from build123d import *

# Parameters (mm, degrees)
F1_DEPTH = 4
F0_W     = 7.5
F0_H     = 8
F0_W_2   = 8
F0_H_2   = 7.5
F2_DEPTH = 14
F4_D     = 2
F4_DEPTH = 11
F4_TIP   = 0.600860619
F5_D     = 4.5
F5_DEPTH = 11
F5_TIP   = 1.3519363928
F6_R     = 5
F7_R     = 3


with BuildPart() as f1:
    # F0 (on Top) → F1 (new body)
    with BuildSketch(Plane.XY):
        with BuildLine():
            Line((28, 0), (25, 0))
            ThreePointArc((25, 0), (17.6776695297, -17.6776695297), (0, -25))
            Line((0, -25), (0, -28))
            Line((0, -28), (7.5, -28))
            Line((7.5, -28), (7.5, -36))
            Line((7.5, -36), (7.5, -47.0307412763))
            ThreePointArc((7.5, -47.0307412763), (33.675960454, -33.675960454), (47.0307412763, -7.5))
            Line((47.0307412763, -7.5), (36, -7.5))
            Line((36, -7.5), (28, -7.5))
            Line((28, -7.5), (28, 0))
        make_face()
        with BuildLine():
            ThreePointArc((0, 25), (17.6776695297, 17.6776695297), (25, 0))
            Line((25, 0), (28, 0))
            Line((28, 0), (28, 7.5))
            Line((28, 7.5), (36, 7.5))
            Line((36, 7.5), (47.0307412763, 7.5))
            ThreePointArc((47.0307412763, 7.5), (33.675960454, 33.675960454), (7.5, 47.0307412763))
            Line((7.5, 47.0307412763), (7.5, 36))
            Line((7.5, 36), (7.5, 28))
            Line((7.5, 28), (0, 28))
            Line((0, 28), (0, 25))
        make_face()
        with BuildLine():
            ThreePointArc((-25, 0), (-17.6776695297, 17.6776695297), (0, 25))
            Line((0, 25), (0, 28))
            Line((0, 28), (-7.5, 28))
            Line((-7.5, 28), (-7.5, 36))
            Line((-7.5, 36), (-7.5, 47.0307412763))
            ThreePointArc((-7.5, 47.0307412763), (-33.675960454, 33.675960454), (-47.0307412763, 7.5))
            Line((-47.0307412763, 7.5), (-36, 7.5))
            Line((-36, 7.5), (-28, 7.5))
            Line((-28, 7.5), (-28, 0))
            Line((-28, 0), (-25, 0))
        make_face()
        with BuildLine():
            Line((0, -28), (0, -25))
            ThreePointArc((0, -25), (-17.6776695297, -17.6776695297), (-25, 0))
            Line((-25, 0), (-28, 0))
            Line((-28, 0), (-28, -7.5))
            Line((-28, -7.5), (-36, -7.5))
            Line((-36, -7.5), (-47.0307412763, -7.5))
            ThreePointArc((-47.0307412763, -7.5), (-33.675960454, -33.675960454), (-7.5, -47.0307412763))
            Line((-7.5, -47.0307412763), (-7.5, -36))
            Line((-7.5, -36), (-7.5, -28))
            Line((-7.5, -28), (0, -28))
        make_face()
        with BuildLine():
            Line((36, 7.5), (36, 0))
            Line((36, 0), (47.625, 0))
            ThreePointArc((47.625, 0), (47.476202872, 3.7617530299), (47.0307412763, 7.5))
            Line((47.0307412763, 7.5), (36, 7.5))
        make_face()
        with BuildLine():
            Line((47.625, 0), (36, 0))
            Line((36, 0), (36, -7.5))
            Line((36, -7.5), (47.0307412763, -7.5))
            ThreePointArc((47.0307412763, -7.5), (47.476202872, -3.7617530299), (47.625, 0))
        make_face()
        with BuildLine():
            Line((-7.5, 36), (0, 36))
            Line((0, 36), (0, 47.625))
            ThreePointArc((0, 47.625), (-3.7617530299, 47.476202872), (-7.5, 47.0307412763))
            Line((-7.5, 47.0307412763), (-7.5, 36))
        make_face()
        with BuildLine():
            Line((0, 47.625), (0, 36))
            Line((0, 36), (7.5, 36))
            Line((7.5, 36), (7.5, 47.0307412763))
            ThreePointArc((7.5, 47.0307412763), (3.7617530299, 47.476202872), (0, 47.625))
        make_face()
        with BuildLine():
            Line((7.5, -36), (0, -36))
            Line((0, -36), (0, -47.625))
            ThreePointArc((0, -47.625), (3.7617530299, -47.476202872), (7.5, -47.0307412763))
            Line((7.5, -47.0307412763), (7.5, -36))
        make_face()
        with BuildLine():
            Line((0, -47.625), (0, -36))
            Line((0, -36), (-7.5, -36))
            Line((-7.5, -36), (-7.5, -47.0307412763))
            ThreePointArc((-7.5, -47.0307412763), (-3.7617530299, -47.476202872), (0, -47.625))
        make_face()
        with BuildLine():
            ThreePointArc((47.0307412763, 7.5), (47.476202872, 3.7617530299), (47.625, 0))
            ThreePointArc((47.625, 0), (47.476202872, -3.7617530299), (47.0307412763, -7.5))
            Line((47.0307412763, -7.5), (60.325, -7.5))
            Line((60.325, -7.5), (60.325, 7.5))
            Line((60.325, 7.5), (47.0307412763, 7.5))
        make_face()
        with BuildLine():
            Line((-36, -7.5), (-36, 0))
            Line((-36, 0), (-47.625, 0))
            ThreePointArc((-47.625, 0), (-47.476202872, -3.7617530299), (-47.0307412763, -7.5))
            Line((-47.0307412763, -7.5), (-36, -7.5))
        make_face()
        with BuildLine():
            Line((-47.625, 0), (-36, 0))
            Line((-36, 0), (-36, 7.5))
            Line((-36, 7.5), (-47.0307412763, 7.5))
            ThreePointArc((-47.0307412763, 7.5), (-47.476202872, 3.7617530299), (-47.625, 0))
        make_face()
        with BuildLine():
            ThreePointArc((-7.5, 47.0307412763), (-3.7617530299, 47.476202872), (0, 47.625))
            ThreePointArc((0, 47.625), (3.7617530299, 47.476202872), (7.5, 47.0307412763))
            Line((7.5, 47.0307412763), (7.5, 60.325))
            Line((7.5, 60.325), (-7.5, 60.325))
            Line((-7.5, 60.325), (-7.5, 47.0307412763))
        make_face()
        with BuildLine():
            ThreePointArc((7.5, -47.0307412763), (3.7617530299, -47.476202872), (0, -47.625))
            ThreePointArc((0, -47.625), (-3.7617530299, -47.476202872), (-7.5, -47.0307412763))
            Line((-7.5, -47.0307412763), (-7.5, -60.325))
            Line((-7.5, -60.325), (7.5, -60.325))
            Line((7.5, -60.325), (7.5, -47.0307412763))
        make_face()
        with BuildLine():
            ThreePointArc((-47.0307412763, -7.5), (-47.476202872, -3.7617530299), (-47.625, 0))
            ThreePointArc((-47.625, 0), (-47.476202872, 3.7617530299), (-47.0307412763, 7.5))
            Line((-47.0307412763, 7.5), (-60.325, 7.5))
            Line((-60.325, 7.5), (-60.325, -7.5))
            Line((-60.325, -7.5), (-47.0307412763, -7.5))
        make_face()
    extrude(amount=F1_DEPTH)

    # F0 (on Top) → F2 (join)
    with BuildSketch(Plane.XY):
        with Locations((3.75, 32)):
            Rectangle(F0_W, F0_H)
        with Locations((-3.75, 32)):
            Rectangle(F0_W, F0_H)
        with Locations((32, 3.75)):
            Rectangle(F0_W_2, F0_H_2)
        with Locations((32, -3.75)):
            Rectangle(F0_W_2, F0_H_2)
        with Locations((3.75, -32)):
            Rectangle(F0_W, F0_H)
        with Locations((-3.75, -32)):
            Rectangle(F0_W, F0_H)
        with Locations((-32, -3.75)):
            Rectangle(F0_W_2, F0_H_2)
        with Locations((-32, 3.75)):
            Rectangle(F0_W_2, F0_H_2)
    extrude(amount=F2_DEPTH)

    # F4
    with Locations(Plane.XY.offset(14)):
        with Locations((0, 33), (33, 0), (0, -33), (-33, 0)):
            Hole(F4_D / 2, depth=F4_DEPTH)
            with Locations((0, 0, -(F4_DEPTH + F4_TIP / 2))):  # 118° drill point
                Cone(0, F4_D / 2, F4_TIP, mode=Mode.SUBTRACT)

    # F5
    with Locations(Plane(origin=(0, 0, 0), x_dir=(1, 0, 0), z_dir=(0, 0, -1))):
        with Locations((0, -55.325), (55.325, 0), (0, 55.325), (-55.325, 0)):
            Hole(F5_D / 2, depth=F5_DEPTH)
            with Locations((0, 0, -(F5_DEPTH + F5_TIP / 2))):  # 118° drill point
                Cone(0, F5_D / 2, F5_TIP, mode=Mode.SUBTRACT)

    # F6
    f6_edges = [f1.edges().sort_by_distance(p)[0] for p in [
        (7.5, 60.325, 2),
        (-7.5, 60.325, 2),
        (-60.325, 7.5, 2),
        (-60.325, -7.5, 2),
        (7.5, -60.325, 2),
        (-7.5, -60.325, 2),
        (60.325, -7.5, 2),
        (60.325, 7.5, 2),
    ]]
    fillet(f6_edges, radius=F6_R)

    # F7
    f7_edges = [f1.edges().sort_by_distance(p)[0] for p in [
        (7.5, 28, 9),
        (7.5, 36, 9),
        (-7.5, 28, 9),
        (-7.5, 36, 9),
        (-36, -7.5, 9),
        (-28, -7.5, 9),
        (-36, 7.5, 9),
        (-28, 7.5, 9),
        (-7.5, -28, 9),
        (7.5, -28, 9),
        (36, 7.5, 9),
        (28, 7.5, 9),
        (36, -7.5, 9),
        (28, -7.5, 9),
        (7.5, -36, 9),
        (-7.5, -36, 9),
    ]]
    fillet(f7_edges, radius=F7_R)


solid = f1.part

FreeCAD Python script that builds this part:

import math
import FreeCAD as App
import Part
import Sketcher
Q = App.Units.Quantity


def edges_at(feature, points):
    """Names of the edges that pass closest to the given points."""
    edges = feature.Shape.Edges
    near = lambda p: min(range(len(edges)), key=lambda i: edges[i].distToShape(Part.Vertex(*p))[0])
    return sorted({f"Edge{near(p) + 1}" for p in points})


def add_polygon(sketch, points):
    """Adds a closed chain of lines whose ends are joined by coincident constraints."""
    first, n = sketch.GeometryCount, len(points)
    for a, b in zip(points, points[1:] + points[:1]):
        sketch.addGeometry(Part.LineSegment(App.Vector(*a, 0), App.Vector(*b, 0)), False)
    for i in range(n):
        sketch.addConstraint(Sketcher.Constraint("Coincident", first + i, 2, first + (i + 1) % n, 1))

doc = App.newDocument("Part")
body = doc.addObject("PartDesign::Body", "Body")

# Sketch on XY plane
sketch1 = body.newObject("Sketcher::SketchObject", "Sketch")
sketch1.AttachmentSupport = (doc.getObject("XY_Plane"), [""])
sketch1.MapMode = "FlatFace"
sketch1.addGeometry(Part.ArcOfCircle(Part.Circle(App.Vector(0, 0, 0), App.Vector(0, 0, 1), 48), math.radians(-81), math.radians(-9)), False)  # 0
sketch1.addGeometry(Part.LineSegment(App.Vector(47, -8, 0), App.Vector(60, -8, 0)), False)  # 1
sketch1.addGeometry(Part.LineSegment(App.Vector(60, -8, 0), App.Vector(60, 8, 0)), False)  # 2
sketch1.addGeometry(Part.LineSegment(App.Vector(60, 8, 0), App.Vector(47, 8, 0)), False)  # 3
sketch1.addGeometry(Part.ArcOfCircle(Part.Circle(App.Vector(0, 0, 0), App.Vector(0, 0, 1), 48), math.radians(9), math.radians(81)), False)  # 4
sketch1.addGeometry(Part.LineSegment(App.Vector(8, 47, 0), App.Vector(8, 60, 0)), False)  # 5
sketch1.addGeometry(Part.LineSegment(App.Vector(8, 60, 0), App.Vector(-8, 60, 0)), False)  # 6
sketch1.addGeometry(Part.LineSegment(App.Vector(-8, 60, 0), App.Vector(-8, 47, 0)), False)  # 7
sketch1.addGeometry(Part.ArcOfCircle(Part.Circle(App.Vector(0, 0, 0), App.Vector(0, 0, 1), 48), math.radians(99), math.radians(171)), False)  # 8
sketch1.addGeometry(Part.LineSegment(App.Vector(-47, 8, 0), App.Vector(-60, 8, 0)), False)  # 9
sketch1.addGeometry(Part.LineSegment(App.Vector(-60, 8, 0), App.Vector(-60, -8, 0)), False)  # 10
sketch1.addGeometry(Part.LineSegment(App.Vector(-60, -8, 0), App.Vector(-47, -8, 0)), False)  # 11
sketch1.addGeometry(Part.ArcOfCircle(Part.Circle(App.Vector(0, 0, 0), App.Vector(0, 0, 1), 48), math.radians(-171), math.radians(-99)), False)  # 12
sketch1.addGeometry(Part.LineSegment(App.Vector(-8, -47, 0), App.Vector(-8, -60, 0)), False)  # 13
sketch1.addGeometry(Part.LineSegment(App.Vector(-8, -60, 0), App.Vector(8, -60, 0)), False)  # 14
sketch1.addGeometry(Part.LineSegment(App.Vector(8, -60, 0), App.Vector(8, -47, 0)), False)  # 15
sketch1.addGeometry(Part.ArcOfCircle(Part.Circle(App.Vector(0, 0, 0), App.Vector(0, 0, 1), 25), math.radians(-90), math.radians(0)), False)  # 16
sketch1.addGeometry(Part.ArcOfCircle(Part.Circle(App.Vector(0, 0, 0), App.Vector(0, 0, 1), 25), math.radians(180), math.radians(270)), False)  # 17
sketch1.addGeometry(Part.ArcOfCircle(Part.Circle(App.Vector(0, 0, 0), App.Vector(0, 0, 1), 25), math.radians(90), math.radians(180)), False)  # 18
sketch1.addGeometry(Part.ArcOfCircle(Part.Circle(App.Vector(0, 0, 0), App.Vector(0, 0, 1), 25), math.radians(0), math.radians(90)), False)  # 19
add_polygon(sketch1, [(8, -28), (8, -36), (-8, -36), (-8, -28)])  # lines 20-23
add_polygon(sketch1, [(-36, 8), (-28, 8), (-28, -8), (-36, -8)])  # lines 24-27
add_polygon(sketch1, [(8, 36), (8, 28), (-8, 28), (-8, 36)])  # lines 28-31
add_polygon(sketch1, [(36, -8), (28, -8), (28, 8), (36, 8)])  # lines 32-35
sketch1.addConstraint([
    Sketcher.Constraint("Coincident", 0, 2, 1, 1),
    Sketcher.Constraint("Coincident", 1, 2, 2, 1),
    Sketcher.Constraint("Coincident", 2, 2, 3, 1),
    Sketcher.Constraint("Coincident", 3, 2, 4, 1),
    Sketcher.Constraint("Coincident", 4, 2, 5, 1),
    Sketcher.Constraint("Coincident", 5, 2, 6, 1),
    Sketcher.Constraint("Coincident", 6, 2, 7, 1),
    Sketcher.Constraint("Coincident", 7, 2, 8, 1),
    Sketcher.Constraint("Coincident", 8, 2, 9, 1),
    Sketcher.Constraint("Coincident", 9, 2, 10, 1),
    Sketcher.Constraint("Coincident", 10, 2, 11, 1),
    Sketcher.Constraint("Coincident", 11, 2, 12, 1),
    Sketcher.Constraint("Coincident", 12, 2, 13, 1),
    Sketcher.Constraint("Coincident", 13, 2, 14, 1),
    Sketcher.Constraint("Coincident", 14, 2, 15, 1),
    Sketcher.Constraint("Coincident", 15, 2, 0, 1),
    Sketcher.Constraint("Tangent", 16, 1, 17, 2),
    Sketcher.Constraint("Tangent", 17, 1, 18, 2),
    Sketcher.Constraint("Tangent", 18, 1, 19, 2),
    Sketcher.Constraint("Tangent", 19, 1, 16, 2),
    Sketcher.Constraint("Horizontal", 1),
    Sketcher.Constraint("Vertical", 2),
    Sketcher.Constraint("Horizontal", 3),
    Sketcher.Constraint("Vertical", 5),
    Sketcher.Constraint("Horizontal", 6),
    Sketcher.Constraint("Vertical", 7),
    Sketcher.Constraint("Horizontal", 9),
    Sketcher.Constraint("Vertical", 10),
    Sketcher.Constraint("Horizontal", 11),
    Sketcher.Constraint("Vertical", 13),
    Sketcher.Constraint("Horizontal", 14),
    Sketcher.Constraint("Vertical", 15),
    Sketcher.Constraint("Vertical", 20),
    Sketcher.Constraint("Horizontal", 21),
    Sketcher.Constraint("Vertical", 22),
    Sketcher.Constraint("Horizontal", 23),
    Sketcher.Constraint("Horizontal", 24),
    Sketcher.Constraint("Vertical", 25),
    Sketcher.Constraint("Horizontal", 26),
    Sketcher.Constraint("Vertical", 27),
    Sketcher.Constraint("Vertical", 28),
    Sketcher.Constraint("Horizontal", 29),
    Sketcher.Constraint("Vertical", 30),
    Sketcher.Constraint("Horizontal", 31),
    Sketcher.Constraint("Horizontal", 32),
    Sketcher.Constraint("Vertical", 33),
    Sketcher.Constraint("Horizontal", 34),
    Sketcher.Constraint("Vertical", 35),
    Sketcher.Constraint("Coincident", 0, 3, -1, 1),
    Sketcher.Constraint("Coincident", 4, 3, -1, 1),
    Sketcher.Constraint("Coincident", 8, 3, -1, 1),
    Sketcher.Constraint("Coincident", 12, 3, -1, 1),
    Sketcher.Constraint("Coincident", 16, 3, -1, 1),
    Sketcher.Constraint("Equal", 0, 4),
    Sketcher.Constraint("Equal", 4, 8),
    Sketcher.Constraint("Equal", 8, 12),
    Sketcher.Constraint("Equal", 16, 17),
    Sketcher.Constraint("Symmetric", 1, 2, 9, 2, -1, 1),
    Sketcher.Constraint("Symmetric", 5, 2, 13, 2, -1, 1),
    Sketcher.Constraint("Symmetric", 22, 2, 28, 2, -1, 1),
    Sketcher.Constraint("Symmetric", 20, 2, 30, 2, -1, 1),
    Sketcher.Constraint("Symmetric", 24, 2, 32, 2, -1, 1),
    Sketcher.Constraint("Symmetric", 26, 2, 34, 2, -1, 1),
    Sketcher.Constraint("PointOnObject", 16, 1, -2),
    Sketcher.Constraint("PointOnObject", 17, 1, -1),
    Sketcher.Constraint("PointOnObject", 18, 1, -2),
    Sketcher.Constraint("PointOnObject", 19, 1, -1),
    Sketcher.Constraint("Horizontal", 4, 2, 7, 2),
    Sketcher.Constraint("Horizontal", 3, 2, 8, 2),
    Sketcher.Constraint("Horizontal", 1, 2, 10, 2),
    Sketcher.Constraint("Horizontal", 12, 2, 15, 2),
    Sketcher.Constraint("Horizontal", 9, 2, 24, 2),
    Sketcher.Constraint("Horizontal", 11, 2, 25, 2),
    Sketcher.Constraint("Vertical", 15, 2, 20, 2),
    Sketcher.Constraint("Vertical", 13, 2, 21, 2),
    Sketcher.Constraint("Equal", 31, 2),
    Sketcher.Constraint("Equal", 11, 5),
    Sketcher.Constraint("Equal", 34, 20),
    Sketcher.Constraint("Radius", 16, Q("25 mm")),
    Sketcher.Constraint("DistanceX", 6, 2, 6, 1, Q("15 mm")),
    Sketcher.Constraint("DistanceX", 24, 1, 24, 2, Q("8 mm")),
    Sketcher.Constraint("DistanceY", 20, 2, -1, 1, Q("36 mm")),
    Sketcher.Constraint("DistanceX", 24, 2, -1, 1, Q("28 mm")),
    Sketcher.Constraint("Radius", 0, Q("47.625 mm")),
    Sketcher.Constraint("DistanceX", -1, 1, 1, 2, Q("60.325 mm")),
])
pad1 = body.newObject("PartDesign::Pad", "Pad")
pad1.Profile = sketch1
pad1.Length = 4

# Sketch on XY plane
sketch2 = body.newObject("Sketcher::SketchObject", "Sketch001")
sketch2.AttachmentSupport = (doc.getObject("XY_Plane"), [""])
sketch2.MapMode = "FlatFace"
add_polygon(sketch2, [(8, 28), (8, 36), (-8, 36), (-8, 28)])  # lines 0-3
add_polygon(sketch2, [(28, 8), (28, -8), (36, -8), (36, 8)])  # lines 4-7
add_polygon(sketch2, [(8, -36), (8, -28), (-8, -28), (-8, -36)])  # lines 8-11
add_polygon(sketch2, [(-36, -8), (-28, -8), (-28, 8), (-36, 8)])  # lines 12-15
sketch2.addConstraint([
    Sketcher.Constraint("Vertical", 0),
    Sketcher.Constraint("Horizontal", 1),
    Sketcher.Constraint("Vertical", 2),
    Sketcher.Constraint("Horizontal", 3),
    Sketcher.Constraint("Vertical", 4),
    Sketcher.Constraint("Horizontal", 5),
    Sketcher.Constraint("Vertical", 6),
    Sketcher.Constraint("Horizontal", 7),
    Sketcher.Constraint("Vertical", 8),
    Sketcher.Constraint("Horizontal", 9),
    Sketcher.Constraint("Vertical", 10),
    Sketcher.Constraint("Horizontal", 11),
    Sketcher.Constraint("Horizontal", 12),
    Sketcher.Constraint("Vertical", 13),
    Sketcher.Constraint("Horizontal", 14),
    Sketcher.Constraint("Vertical", 15),
    Sketcher.Constraint("Symmetric", 2, 2, 8, 2, -1, 1),
    Sketcher.Constraint("Symmetric", 0, 2, 10, 2, -1, 1),
    Sketcher.Constraint("Symmetric", 7, 2, 12, 2, -1, 1),
    Sketcher.Constraint("Symmetric", 5, 2, 14, 2, -1, 1),
    Sketcher.Constraint("Horizontal", 5, 2, 12, 2),
    Sketcher.Constraint("Vertical", 3, 2, 8, 2),
    Sketcher.Constraint("Equal", 14, 0),
    Sketcher.Constraint("Equal", 11, 4),
    Sketcher.Constraint("DistanceX", 1, 2, 1, 1, Q("15 mm")),
    Sketcher.Constraint("DistanceX", 5, 1, 5, 2, Q("8 mm")),
    Sketcher.Constraint("DistanceY", -1, 1, 0, 2, Q("36 mm")),
    Sketcher.Constraint("DistanceX", -1, 1, 4, 2, Q("28 mm")),
])
pad2 = body.newObject("PartDesign::Pad", "Pad001")
pad2.Profile = sketch2
pad2.Length = 14

# Sketch on XY plane
sketch3 = body.newObject("Sketcher::SketchObject", "Sketch002")
sketch3.AttachmentSupport = (doc.getObject("XY_Plane"), [""])
sketch3.MapMode = "FlatFace"
sketch3.AttachmentOffset = App.Placement(App.Vector(0, 0, 14), App.Rotation())
sketch3.addGeometry([
    Part.Circle(App.Vector(0, 33, 0), App.Vector(0, 0, 1), 1),
    Part.Circle(App.Vector(33, 0, 0), App.Vector(0, 0, 1), 1),
    Part.Circle(App.Vector(0, -33, 0), App.Vector(0, 0, 1), 1),
    Part.Circle(App.Vector(-33, 0, 0), App.Vector(0, 0, 1), 1),
], False)
sketch3.addConstraint([
    Sketcher.Constraint("Equal", 0, 1),
    Sketcher.Constraint("Equal", 1, 2),
    Sketcher.Constraint("Equal", 2, 3),
    Sketcher.Constraint("Symmetric", 0, 3, 2, 3, -1, 1),
    Sketcher.Constraint("Symmetric", 1, 3, 3, 3, -1, 1),
    Sketcher.Constraint("PointOnObject", 0, 3, -2),
    Sketcher.Constraint("PointOnObject", 1, 3, -1),
    Sketcher.Constraint("Diameter", 0, Q("2 mm")),
    Sketcher.Constraint("DistanceY", -1, 1, 0, 3, Q("33 mm")),
    Sketcher.Constraint("DistanceX", -1, 1, 1, 3, Q("33 mm")),
])
doc.recompute()
hole = body.newObject("PartDesign::Hole", "Hole")
hole.Profile = sketch3
hole.ThreadType = "None"
hole.Diameter = 2
hole.DepthType = "Dimension"
hole.Depth = 11
hole.DrillPoint = "Angled"
hole.DrillPointAngle = 118

# Sketch on XY plane
sketch4 = body.newObject("Sketcher::SketchObject", "Sketch003")
sketch4.AttachmentSupport = (doc.getObject("XY_Plane"), [""])
sketch4.MapMode = "FlatFace"
sketch4.addGeometry([
    Part.Circle(App.Vector(0, 55.3, 0), App.Vector(0, 0, 1), 2.2),
    Part.Circle(App.Vector(55.3, 0, 0), App.Vector(0, 0, 1), 2.2),
    Part.Circle(App.Vector(0, -55.3, 0), App.Vector(0, 0, 1), 2.2),
    Part.Circle(App.Vector(-55.3, 0, 0), App.Vector(0, 0, 1), 2.2),
], False)
sketch4.addConstraint([
    Sketcher.Constraint("Equal", 0, 1),
    Sketcher.Constraint("Equal", 1, 2),
    Sketcher.Constraint("Equal", 2, 3),
    Sketcher.Constraint("Symmetric", 0, 3, 2, 3, -1, 1),
    Sketcher.Constraint("Symmetric", 1, 3, 3, 3, -1, 1),
    Sketcher.Constraint("PointOnObject", 0, 3, -2),
    Sketcher.Constraint("PointOnObject", 1, 3, -1),
    Sketcher.Constraint("Diameter", 0, Q("4.5 mm")),
    Sketcher.Constraint("DistanceY", 2, 3, 0, 3, Q("110.65 mm")),
    Sketcher.Constraint("DistanceX", 3, 3, 1, 3, Q("110.65 mm")),
])
doc.recompute()
hole2 = body.newObject("PartDesign::Hole", "Hole001")
hole2.Profile = sketch4
hole2.ThreadType = "None"
hole2.Diameter = 4.5
hole2.DepthType = "Dimension"
hole2.Depth = 11
hole2.DrillPoint = "Angled"
hole2.DrillPointAngle = 118
hole2.Reversed = True
doc.recompute()

fillet = body.newObject("PartDesign::Fillet", "Fillet")
fillet.Base = (hole2, edges_at(hole2, [
    (7.5, 60.325, 2),
    (-7.5, 60.325, 2),
    (-60.325, 7.5, 2),
    (-60.325, -7.5, 2),
    (7.5, -60.325, 2),
    (-7.5, -60.325, 2),
    (60.325, -7.5, 2),
    (60.325, 7.5, 2),
]))
fillet.Radius = 5
doc.recompute()

fillet2 = body.newObject("PartDesign::Fillet", "Fillet001")
fillet2.Base = (fillet, edges_at(fillet, [
    (7.5, 28, 9),
    (7.5, 36, 9),
    (-7.5, 28, 9),
    (-7.5, 36, 9),
    (-36, -7.5, 9),
    (-28, -7.5, 9),
    (-36, 7.5, 9),
    (-28, 7.5, 9),
    (-7.5, -28, 9),
    (7.5, -28, 9),
    (36, 7.5, 9),
    (28, 7.5, 9),
    (36, -7.5, 9),
    (28, -7.5, 9),
    (7.5, -36, 9),
    (-7.5, -36, 9),
]))
fillet2.Radius = 3

doc.recompute()
